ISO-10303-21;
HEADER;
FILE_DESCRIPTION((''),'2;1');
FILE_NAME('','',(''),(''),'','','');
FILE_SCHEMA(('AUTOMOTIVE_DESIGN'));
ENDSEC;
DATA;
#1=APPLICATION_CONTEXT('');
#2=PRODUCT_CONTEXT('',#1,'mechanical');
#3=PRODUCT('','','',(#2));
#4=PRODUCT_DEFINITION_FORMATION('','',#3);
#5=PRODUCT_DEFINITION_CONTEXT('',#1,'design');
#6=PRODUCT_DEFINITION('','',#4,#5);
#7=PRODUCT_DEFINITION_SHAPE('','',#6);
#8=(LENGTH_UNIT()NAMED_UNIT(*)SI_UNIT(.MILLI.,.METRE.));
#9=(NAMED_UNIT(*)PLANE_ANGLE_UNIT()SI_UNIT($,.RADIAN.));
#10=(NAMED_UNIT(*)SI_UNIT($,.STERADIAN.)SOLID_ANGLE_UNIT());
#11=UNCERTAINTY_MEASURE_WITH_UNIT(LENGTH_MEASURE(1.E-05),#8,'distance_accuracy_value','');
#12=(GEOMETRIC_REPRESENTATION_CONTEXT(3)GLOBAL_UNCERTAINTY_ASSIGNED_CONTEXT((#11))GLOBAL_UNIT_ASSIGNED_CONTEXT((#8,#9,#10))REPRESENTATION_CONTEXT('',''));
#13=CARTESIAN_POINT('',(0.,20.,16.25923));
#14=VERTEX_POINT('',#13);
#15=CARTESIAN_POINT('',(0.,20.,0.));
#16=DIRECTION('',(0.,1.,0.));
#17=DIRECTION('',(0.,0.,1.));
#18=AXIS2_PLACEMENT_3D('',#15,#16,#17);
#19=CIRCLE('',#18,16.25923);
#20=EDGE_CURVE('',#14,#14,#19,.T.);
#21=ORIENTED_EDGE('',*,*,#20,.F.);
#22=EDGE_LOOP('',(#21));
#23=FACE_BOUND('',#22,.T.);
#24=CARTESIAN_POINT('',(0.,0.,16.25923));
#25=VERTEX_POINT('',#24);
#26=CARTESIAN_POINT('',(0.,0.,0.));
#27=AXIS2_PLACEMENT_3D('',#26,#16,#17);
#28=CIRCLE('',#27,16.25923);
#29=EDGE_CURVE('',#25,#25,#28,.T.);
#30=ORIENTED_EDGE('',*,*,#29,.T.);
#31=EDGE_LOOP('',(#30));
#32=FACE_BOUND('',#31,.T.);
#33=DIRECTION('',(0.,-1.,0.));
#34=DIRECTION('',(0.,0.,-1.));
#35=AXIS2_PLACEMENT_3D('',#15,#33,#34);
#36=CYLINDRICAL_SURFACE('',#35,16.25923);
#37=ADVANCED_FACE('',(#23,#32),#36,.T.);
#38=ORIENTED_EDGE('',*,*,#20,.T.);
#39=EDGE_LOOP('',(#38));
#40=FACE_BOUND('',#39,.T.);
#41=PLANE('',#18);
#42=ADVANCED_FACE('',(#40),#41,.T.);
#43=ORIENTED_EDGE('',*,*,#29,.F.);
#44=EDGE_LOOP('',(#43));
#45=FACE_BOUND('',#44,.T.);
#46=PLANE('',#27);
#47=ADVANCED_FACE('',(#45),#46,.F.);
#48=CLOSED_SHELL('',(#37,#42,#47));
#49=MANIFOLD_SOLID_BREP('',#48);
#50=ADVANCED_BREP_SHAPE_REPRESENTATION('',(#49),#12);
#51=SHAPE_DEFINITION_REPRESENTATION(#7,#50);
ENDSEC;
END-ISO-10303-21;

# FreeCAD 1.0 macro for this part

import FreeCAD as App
import Part
import Sketcher

V = App.Vector

doc = App.newDocument("Part")
body = doc.addObject("PartDesign::Body", "Body")

sketch1 = doc.addObject("Sketcher::SketchObject", "Sketch")
body.addObject(sketch1)
sketch1.AttachmentSupport = (doc.XZ_Plane, [""])
sketch1.MapMode = "FlatFace"
sketch1.addGeometry(Part.Circle(V(0, 0, 0), V(0, 0, 1), 16.25923), False)
sketch1.addConstraint([
    Sketcher.Constraint("Coincident", 0, 3, -1, 1),
    Sketcher.Constraint("Diameter", 0, 32.518459),
])
pad1 = doc.addObject("PartDesign::Pad", "Pad")
body.addObject(pad1)
pad1.Profile = sketch1
pad1.Length = 20
pad1.Reversed = True

doc.recompute()
